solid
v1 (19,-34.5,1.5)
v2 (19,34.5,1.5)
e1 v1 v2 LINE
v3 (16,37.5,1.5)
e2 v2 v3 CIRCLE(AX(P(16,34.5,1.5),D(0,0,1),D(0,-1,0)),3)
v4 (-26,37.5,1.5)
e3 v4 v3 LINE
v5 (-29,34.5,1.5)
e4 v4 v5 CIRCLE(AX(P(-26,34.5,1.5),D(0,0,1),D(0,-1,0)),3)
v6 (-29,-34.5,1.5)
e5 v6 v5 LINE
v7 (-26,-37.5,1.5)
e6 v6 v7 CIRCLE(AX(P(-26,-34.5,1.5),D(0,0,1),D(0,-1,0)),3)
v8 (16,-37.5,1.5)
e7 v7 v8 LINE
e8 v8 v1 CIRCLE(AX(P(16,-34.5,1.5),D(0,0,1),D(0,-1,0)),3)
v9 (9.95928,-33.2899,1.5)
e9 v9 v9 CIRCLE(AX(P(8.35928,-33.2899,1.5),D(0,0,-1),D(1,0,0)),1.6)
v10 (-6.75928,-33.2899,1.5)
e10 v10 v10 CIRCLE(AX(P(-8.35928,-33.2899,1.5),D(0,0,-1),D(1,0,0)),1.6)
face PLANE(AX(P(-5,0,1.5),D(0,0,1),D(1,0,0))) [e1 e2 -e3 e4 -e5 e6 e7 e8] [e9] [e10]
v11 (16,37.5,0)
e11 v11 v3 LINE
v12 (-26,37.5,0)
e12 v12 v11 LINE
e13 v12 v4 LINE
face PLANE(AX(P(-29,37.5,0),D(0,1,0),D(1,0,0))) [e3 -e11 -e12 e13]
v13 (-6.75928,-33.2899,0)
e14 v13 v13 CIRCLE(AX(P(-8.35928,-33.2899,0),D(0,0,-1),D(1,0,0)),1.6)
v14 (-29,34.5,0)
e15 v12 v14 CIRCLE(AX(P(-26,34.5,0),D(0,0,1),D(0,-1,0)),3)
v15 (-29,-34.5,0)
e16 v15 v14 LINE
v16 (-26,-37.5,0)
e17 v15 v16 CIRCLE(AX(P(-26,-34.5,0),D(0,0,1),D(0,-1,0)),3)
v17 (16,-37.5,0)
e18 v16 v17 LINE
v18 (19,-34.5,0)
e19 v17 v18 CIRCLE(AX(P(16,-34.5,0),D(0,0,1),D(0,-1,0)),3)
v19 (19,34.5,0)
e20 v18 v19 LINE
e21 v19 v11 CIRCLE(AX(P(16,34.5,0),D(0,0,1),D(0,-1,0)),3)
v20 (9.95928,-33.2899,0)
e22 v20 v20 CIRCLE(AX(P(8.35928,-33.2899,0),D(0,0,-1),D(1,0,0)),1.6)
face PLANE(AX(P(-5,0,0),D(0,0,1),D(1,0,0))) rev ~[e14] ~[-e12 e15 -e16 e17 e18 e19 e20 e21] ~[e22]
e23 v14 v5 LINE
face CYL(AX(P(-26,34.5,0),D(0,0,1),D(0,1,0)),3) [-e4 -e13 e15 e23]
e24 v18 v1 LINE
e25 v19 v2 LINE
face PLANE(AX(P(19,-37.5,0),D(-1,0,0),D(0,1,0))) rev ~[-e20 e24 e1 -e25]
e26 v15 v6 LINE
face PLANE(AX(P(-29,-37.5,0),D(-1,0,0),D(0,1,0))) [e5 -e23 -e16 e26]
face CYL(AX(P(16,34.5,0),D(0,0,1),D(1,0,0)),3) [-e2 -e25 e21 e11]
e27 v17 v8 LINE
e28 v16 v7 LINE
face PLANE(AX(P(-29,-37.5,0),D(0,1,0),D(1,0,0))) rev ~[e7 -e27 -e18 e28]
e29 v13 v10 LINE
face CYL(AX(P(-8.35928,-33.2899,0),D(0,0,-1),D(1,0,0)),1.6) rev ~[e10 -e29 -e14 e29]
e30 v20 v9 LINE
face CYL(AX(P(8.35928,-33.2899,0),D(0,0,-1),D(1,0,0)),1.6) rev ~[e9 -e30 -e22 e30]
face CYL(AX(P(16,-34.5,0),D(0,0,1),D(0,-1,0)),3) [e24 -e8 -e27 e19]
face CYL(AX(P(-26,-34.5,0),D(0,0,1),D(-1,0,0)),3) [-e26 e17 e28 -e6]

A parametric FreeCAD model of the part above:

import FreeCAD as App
import Part
import Sketcher
from FreeCAD import Vector
Q = App.Units.Quantity


def edges_at(feature, points):
    """Names of the edges that pass closest to the given points."""
    edges = feature.Shape.Edges
    near = lambda p: min(range(len(edges)), key=lambda i: edges[i].distToShape(Part.Vertex(*p))[0])
    return sorted({f"Edge{near(p) + 1}" for p in points})


def add_polygon(sketch, points):
    """Adds a closed chain of lines whose ends are joined by coincident constraints."""
    first, n = sketch.GeometryCount, len(points)
    for a, b in zip(points, points[1:] + points[:1]):
        sketch.addGeometry(Part.LineSegment(App.Vector(*a, 0), App.Vector(*b, 0)), False)
    for i in range(n):
        sketch.addConstraint(Sketcher.Constraint("Coincident", first + i, 2, first + (i + 1) % n, 1))

doc = App.newDocument("Part")
params = doc.addObject("Spreadsheet::Sheet", "Params")
for row, (alias, value) in enumerate([
    ("sketch1_width", "48 mm"),
    ("sketch1_height", "75 mm"),
    ("pad1_length", "1.5 mm"),
    ("fillet_radius", "3 mm"),
    ("fillet2_radius", "3 mm"),
    ("fillet3_radius", "3 mm"),
    ("fillet4_radius", "3 mm"),
    ("sketch2_diameter", "3.2 mm"),
], start=1):
    params.set(f"A{row}", alias)
    params.set(f"B{row}", "=" + value)
    params.setAlias(f"B{row}", alias)

body = doc.addObject("PartDesign::Body", "Body")

# Sketch on XY plane
sketch1 = body.newObject("Sketcher::SketchObject", "Sketch")
sketch1.AttachmentSupport = (doc.getObject("XY_Plane"), [""])
sketch1.MapMode = "FlatFace"
add_polygon(sketch1, [(-29, 38), (-29, -38), (19, -38), (19, 38)])  # lines 0-3
sketch1.addConstraint([
    Sketcher.Constraint("Vertical", 0),
    Sketcher.Constraint("Horizontal", 1),
    Sketcher.Constraint("Vertical", 2),
    Sketcher.Constraint("Horizontal", 3),
    Sketcher.Constraint("DistanceX", 1, 1, 1, 2, Q("48 mm")),
    Sketcher.Constraint("DistanceY", 0, 2, 0, 1, Q("75 mm")),
    Sketcher.Constraint("DistanceX", 0, 2, -1, 1, Q("29 mm")),
    Sketcher.Constraint("DistanceY", 0, 2, -1, 1, Q("37.5 mm")),
])
sketch1.setExpression("Constraints[8]", "Params.sketch1_width")
sketch1.setExpression("Constraints[9]", "Params.sketch1_height")
pad1 = body.newObject("PartDesign::Pad", "Pad")
pad1.Profile = sketch1
pad1.setExpression("Length", "Params.pad1_length")
doc.recompute()

fillet = body.newObject("PartDesign::Fillet", "Fillet")
fillet.Base = (pad1, edges_at(pad1, [(19, 37.5, 0.75)]))
fillet.setExpression("Radius", "Params.fillet_radius")
doc.recompute()

fillet2 = body.newObject("PartDesign::Fillet", "Fillet001")
fillet2.Base = (fillet, edges_at(fillet, [(-29, 37.5, 0.75)]))
fillet2.setExpression("Radius", "Params.fillet2_radius")
doc.recompute()

fillet3 = body.newObject("PartDesign::Fillet", "Fillet002")
fillet3.Base = (fillet2, edges_at(fillet2, [(-29, -37.5, 0.75)]))
fillet3.setExpression("Radius", "Params.fillet3_radius")
doc.recompute()

fillet4 = body.newObject("PartDesign::Fillet", "Fillet003")
fillet4.Base = (fillet3, edges_at(fillet3, [(19, -37.5, 0.75)]))
fillet4.setExpression("Radius", "Params.fillet4_radius")

# Sketch on XY plane
sketch2 = body.newObject("Sketcher::SketchObject", "Sketch001")
sketch2.AttachmentSupport = (doc.getObject("XY_Plane"), [""])
sketch2.MapMode = "FlatFace"
sketch2.addGeometry([
    Part.Circle(Vector(-8.4, -33.3, 0), Vector(0, 0, 1), 1.6),
    Part.Circle(Vector(8.4, -33.3, 0), Vector(0, 0, 1), 1.6),
], False)
sketch2.addConstraint([
    Sketcher.Constraint("Equal", 0, 1),
    Sketcher.Constraint("Symmetric", 0, 3, 1, 3, -2),
    Sketcher.Constraint("Diameter", 0, Q("3.2 mm")),
    Sketcher.Constraint("DistanceY", 0, 3, -1, 1, Q("33.2899 mm")),
    Sketcher.Constraint("DistanceX", 0, 3, -1, 1, Q("8.35928 mm")),
])
sketch2.setExpression("Constraints[2]", "Params.sketch2_diameter")
pocket1 = body.newObject("PartDesign::Pocket", "Pocket")
pocket1.Profile = sketch2
pocket1.Type = "ThroughAll"
pocket1.Reversed = True

doc.recompute()
